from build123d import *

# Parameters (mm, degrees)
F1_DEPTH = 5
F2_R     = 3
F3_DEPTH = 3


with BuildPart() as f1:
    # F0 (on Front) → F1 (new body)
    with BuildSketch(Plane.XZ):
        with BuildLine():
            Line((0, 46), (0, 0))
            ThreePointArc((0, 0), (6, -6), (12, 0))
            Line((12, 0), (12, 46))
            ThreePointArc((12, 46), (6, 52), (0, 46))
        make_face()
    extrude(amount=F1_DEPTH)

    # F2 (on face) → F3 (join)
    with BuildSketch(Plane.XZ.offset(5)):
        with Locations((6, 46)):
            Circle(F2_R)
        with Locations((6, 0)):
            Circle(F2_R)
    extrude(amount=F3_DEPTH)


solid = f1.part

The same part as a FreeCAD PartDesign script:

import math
import FreeCAD as App
import Part
import Sketcher

V = App.Vector
Q = App.Units.Quantity

doc = App.newDocument("Part")
body = doc.addObject("PartDesign::Body", "Body")

sketch1 = body.newObject("Sketcher::SketchObject", "Sketch")
sketch1.AttachmentSupport = (doc.getObject("XZ_Plane"), [""])
sketch1.MapMode = "FlatFace"
sketch1.addGeometry([
    Part.LineSegment(V(0, 46, 0), V(0, 0, 0)),
    Part.ArcOfCircle(Part.Circle(V(6, 0, 0), V(0, 0, 1), 6), math.radians(180), math.radians(360)),
    Part.LineSegment(V(12, 0, 0), V(12, 46, 0)),
    Part.ArcOfCircle(Part.Circle(V(6, 46, 0), V(0, 0, 1), 6), math.radians(0), math.radians(180)),
], False)
sketch1.addConstraint([
    Sketcher.Constraint("Tangent", 0, 2, 1, 1),
    Sketcher.Constraint("Tangent", 1, 2, 2, 1),
    Sketcher.Constraint("Tangent", 2, 2, 3, 1),
    Sketcher.Constraint("Tangent", 3, 2, 0, 1),
    Sketcher.Constraint("Vertical", 0),
    Sketcher.Constraint("Vertical", 2),
    Sketcher.Constraint("Coincident", 0, 2, -1, 1),
    Sketcher.Constraint("Radius", 1, Q("6 mm")),
    Sketcher.Constraint("DistanceY", 0, 2, 0, 1, Q("46 mm")),
])
pad1 = body.newObject("PartDesign::Pad", "Pad")
pad1.Profile = sketch1
pad1.Length = 5

sketch2 = body.newObject("Sketcher::SketchObject", "Sketch001")
sketch2.AttachmentSupport = (doc.getObject("XZ_Plane"), [""])
sketch2.MapMode = "FlatFace"
sketch2.AttachmentOffset = App.Placement(V(0, 0, 5), App.Rotation())
sketch2.addGeometry([
    Part.Circle(V(6, 46, 0), V(0, 0, 1), 3),
    Part.Circle(V(6, 0, 0), V(0, 0, 1), 3),
], False)
sketch2.addConstraint([
    Sketcher.Constraint("Equal", 0, 1),
    Sketcher.Constraint("PointOnObject", 1, 3, -1),
    Sketcher.Constraint("Vertical", 0, 3, 1, 3),
    Sketcher.Constraint("Diameter", 0, Q("6 mm")),
    Sketcher.Constraint("DistanceX", -1, 1, 0, 3, Q("6 mm")),
    Sketcher.Constraint("DistanceY", -1, 1, 0, 3, Q("46 mm")),
])
pad2 = body.newObject("PartDesign::Pad", "Pad001")
pad2.Profile = sketch2
pad2.Length = 3

doc.recompute()
